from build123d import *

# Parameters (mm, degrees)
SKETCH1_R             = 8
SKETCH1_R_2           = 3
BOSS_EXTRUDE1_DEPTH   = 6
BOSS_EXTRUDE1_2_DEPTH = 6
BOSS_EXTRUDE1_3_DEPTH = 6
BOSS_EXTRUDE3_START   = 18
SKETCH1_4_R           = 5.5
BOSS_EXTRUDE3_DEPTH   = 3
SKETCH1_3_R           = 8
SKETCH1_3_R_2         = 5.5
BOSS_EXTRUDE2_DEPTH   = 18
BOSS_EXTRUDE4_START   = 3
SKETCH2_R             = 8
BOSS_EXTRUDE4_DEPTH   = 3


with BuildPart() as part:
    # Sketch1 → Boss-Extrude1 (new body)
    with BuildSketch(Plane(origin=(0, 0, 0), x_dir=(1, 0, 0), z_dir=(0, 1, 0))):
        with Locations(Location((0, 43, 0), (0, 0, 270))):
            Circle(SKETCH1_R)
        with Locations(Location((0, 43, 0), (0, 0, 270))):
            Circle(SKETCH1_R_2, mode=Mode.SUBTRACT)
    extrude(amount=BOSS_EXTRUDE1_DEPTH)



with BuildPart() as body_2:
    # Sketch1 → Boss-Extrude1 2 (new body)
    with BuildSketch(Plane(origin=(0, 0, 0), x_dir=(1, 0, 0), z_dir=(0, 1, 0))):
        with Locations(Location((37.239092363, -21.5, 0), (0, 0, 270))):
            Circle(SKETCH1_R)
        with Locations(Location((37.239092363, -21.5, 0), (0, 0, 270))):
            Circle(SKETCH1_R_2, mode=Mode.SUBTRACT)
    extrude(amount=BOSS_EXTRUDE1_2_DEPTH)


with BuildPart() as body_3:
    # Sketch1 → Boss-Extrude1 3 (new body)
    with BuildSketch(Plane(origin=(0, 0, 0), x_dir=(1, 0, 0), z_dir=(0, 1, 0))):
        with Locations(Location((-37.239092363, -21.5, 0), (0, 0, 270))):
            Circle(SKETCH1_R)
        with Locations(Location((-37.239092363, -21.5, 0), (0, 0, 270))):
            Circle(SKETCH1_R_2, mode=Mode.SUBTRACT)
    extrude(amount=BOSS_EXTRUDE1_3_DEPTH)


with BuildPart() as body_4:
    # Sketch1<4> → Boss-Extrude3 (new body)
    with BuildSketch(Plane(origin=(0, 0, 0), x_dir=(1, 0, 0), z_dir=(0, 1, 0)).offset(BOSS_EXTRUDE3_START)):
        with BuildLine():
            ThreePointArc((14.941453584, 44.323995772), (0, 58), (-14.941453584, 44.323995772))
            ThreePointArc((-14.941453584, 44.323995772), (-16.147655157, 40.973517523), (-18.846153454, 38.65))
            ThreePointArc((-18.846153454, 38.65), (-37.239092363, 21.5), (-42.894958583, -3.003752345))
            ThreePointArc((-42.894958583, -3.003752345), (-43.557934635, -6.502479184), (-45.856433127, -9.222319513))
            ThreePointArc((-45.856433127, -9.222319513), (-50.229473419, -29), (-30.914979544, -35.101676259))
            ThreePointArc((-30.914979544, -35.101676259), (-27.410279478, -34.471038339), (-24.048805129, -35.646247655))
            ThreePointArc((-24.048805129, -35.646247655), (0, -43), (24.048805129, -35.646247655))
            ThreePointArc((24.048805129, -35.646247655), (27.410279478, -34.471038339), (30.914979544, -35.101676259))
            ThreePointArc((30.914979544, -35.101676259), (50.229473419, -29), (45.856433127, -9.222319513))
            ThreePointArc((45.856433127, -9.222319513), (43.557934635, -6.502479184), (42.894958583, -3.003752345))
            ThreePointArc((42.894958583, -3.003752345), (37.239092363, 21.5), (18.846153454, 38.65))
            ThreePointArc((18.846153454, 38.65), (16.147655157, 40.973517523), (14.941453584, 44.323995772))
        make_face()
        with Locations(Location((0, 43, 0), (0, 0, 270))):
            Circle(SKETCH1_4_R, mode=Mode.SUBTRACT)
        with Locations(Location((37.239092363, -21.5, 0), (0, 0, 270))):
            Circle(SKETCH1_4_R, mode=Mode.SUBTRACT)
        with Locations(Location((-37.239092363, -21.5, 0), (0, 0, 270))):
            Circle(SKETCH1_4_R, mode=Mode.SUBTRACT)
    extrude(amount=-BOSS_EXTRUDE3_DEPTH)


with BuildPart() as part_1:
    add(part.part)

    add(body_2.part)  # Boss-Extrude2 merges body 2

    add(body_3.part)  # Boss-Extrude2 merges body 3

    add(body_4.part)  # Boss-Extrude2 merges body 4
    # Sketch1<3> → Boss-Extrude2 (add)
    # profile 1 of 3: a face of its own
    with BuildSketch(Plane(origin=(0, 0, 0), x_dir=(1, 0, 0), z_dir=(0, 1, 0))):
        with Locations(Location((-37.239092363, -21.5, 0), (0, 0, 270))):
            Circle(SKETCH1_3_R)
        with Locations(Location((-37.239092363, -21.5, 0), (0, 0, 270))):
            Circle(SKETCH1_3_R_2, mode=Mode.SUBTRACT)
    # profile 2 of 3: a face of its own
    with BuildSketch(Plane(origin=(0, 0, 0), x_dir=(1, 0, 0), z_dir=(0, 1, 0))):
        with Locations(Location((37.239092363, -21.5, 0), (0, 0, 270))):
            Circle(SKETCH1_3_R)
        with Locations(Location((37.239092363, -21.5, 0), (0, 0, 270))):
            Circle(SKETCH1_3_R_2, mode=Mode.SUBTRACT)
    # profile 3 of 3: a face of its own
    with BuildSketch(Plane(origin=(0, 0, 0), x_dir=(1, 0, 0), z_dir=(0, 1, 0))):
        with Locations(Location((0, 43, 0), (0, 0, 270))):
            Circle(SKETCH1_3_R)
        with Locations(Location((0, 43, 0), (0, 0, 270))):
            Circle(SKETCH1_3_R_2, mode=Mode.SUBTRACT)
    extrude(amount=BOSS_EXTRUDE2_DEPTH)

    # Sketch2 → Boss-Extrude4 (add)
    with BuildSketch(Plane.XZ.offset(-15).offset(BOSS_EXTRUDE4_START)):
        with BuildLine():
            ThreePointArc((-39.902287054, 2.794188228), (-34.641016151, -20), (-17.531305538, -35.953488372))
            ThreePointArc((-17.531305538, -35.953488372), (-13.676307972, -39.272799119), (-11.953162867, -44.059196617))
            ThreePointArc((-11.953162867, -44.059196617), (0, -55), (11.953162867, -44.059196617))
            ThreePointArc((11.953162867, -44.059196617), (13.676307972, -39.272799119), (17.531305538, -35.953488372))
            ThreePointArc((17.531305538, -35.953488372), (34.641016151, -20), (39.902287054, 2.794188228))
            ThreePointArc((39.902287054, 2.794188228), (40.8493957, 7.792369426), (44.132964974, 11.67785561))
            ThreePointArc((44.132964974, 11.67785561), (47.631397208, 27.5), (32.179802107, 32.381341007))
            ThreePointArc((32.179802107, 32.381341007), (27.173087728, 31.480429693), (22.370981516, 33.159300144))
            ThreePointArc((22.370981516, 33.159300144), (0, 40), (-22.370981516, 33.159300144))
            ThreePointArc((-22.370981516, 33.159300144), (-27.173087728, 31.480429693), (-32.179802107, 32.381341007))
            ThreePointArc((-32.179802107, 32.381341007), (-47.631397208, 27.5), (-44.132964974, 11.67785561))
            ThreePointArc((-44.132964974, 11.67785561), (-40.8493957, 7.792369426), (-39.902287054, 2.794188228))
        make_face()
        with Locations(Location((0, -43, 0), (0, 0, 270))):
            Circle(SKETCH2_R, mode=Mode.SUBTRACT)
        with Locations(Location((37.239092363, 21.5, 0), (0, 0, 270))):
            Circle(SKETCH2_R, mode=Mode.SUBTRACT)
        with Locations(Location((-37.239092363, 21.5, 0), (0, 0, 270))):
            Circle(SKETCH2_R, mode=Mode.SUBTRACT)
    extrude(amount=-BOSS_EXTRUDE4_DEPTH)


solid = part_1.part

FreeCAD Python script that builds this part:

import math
import FreeCAD as App
import Part
import Sketcher

doc = App.newDocument("Part")
params = doc.addObject("Spreadsheet::Sheet", "Params")
for row, (alias, value) in enumerate([
    ("sketch1_diameter", "16 mm"),
    ("sketch1_diameter2", "6 mm"),
    ("pad1_length", "6 mm"),
    ("sketch2_diameter", "16 mm"),
    ("sketch2_diameter2", "6 mm"),
    ("pad2_length", "6 mm"),
    ("sketch3_diameter", "16 mm"),
    ("sketch3_diameter2", "6 mm"),
    ("pad3_length", "6 mm"),
    ("sketch4_diameter", "11 mm"),
    ("sketch4_diameter2", "11 mm"),
    ("sketch4_diameter3", "11 mm"),
    ("sketch4_radius", "15 mm"),
    ("sketch4_radius2", "7 mm"),
    ("pad4_length", "3 mm"),
    ("sketch5_diameter", "16 mm"),
    ("sketch5_diameter2", "11 mm"),
    ("pad5_length", "18 mm"),
    ("sketch6_diameter", "16 mm"),
    ("sketch6_radius", "40 mm"),
    ("sketch6_radius2", "10 mm"),
    ("sketch6_radius3", "12 mm"),
    ("pad6_length", "3 mm"),
], start=1):
    params.set(f"A{row}", alias)
    params.set(f"B{row}", "=" + value)
    params.setAlias(f"B{row}", alias)

body = doc.addObject("PartDesign::Body", "Body")

# Sketch on XZ plane
sketch1 = body.newObject("Sketcher::SketchObject", "Sketch")
sketch1.AttachmentSupport = (doc.getObject("XZ_Plane"), [""])
sketch1.MapMode = "FlatFace"
sketch1.addGeometry([
    Part.Circle(App.Vector(0, -43, 0), App.Vector(0, 0, 1), 8),
    Part.Circle(App.Vector(0, -43, 0), App.Vector(0, 0, 1), 3),
], False)
sketch1.addConstraint([
    Sketcher.Constraint("Coincident", 1, 3, 0, 3),
    Sketcher.Constraint("PointOnObject", 0, 3, -2),
    Sketcher.Constraint("Diameter", 0, 16.0),
    Sketcher.Constraint("Diameter", 1, 6.0),
    Sketcher.Constraint("DistanceY", 0, 3, -1, 1, 43.0),
])
sketch1.setExpression("Constraints[2]", "Params.sketch1_diameter")
sketch1.setExpression("Constraints[3]", "Params.sketch1_diameter2")
pad1 = body.newObject("PartDesign::Pad", "Pad")
pad1.Profile = sketch1
pad1.setExpression("Length", "Params.pad1_length")
pad1.Reversed = True
body2 = doc.addObject("PartDesign::Body", "Body001")

# Sketch on XZ plane
sketch2 = body2.newObject("Sketcher::SketchObject", "Sketch001")
sketch2.AttachmentSupport = (doc.getObject("XZ_Plane001"), [""])
sketch2.MapMode = "FlatFace"
sketch2.addGeometry([
    Part.Circle(App.Vector(37.239092, 21.5, 0), App.Vector(0, 0, 1), 8),
    Part.Circle(App.Vector(37.239092, 21.5, 0), App.Vector(0, 0, 1), 3),
], False)
sketch2.addConstraint([
    Sketcher.Constraint("Coincident", 1, 3, 0, 3),
    Sketcher.Constraint("Diameter", 0, 16.0),
    Sketcher.Constraint("Diameter", 1, 6.0),
    Sketcher.Constraint("DistanceY", -1, 1, 0, 3, 21.5),
    Sketcher.Constraint("DistanceX", -1, 1, 0, 3, 37.239092),
])
sketch2.setExpression("Constraints[1]", "Params.sketch2_diameter")
sketch2.setExpression("Constraints[2]", "Params.sketch2_diameter2")
pad2 = body2.newObject("PartDesign::Pad", "Pad001")
pad2.Profile = sketch2
pad2.setExpression("Length", "Params.pad2_length")
pad2.Reversed = True
body3 = doc.addObject("PartDesign::Body", "Body002")

# Sketch on XZ plane
sketch3 = body3.newObject("Sketcher::SketchObject", "Sketch002")
sketch3.AttachmentSupport = (doc.getObject("XZ_Plane002"), [""])
sketch3.MapMode = "FlatFace"
sketch3.addGeometry([
    Part.Circle(App.Vector(-37.239092, 21.5, 0), App.Vector(0, 0, 1), 8),
    Part.Circle(App.Vector(-37.239092, 21.5, 0), App.Vector(0, 0, 1), 3),
], False)
sketch3.addConstraint([
    Sketcher.Constraint("Coincident", 1, 3, 0, 3),
    Sketcher.Constraint("Diameter", 0, 16.0),
    Sketcher.Constraint("Diameter", 1, 6.0),
    Sketcher.Constraint("DistanceY", -1, 1, 0, 3, 21.5),
    Sketcher.Constraint("DistanceX", 0, 3, -1, 1, 37.239092),
])
sketch3.setExpression("Constraints[1]", "Params.sketch3_diameter")
sketch3.setExpression("Constraints[2]", "Params.sketch3_diameter2")
pad3 = body3.newObject("PartDesign::Pad", "Pad002")
pad3.Profile = sketch3
pad3.setExpression("Length", "Params.pad3_length")
pad3.Reversed = True
body4 = doc.addObject("PartDesign::Body", "Body003")

# Sketch on XZ plane
sketch4 = body4.newObject("Sketcher::SketchObject", "Sketch003")
sketch4.AttachmentSupport = (doc.getObject("XZ_Plane003"), [""])
sketch4.MapMode = "FlatFace"
sketch4.AttachmentOffset = App.Placement(App.Vector(0, 0, -18), App.Rotation())
sketch4.addGeometry([
    Part.ArcOfCircle(Part.Circle(App.Vector(0, -43, 0), App.Vector(0, 0, 1), 15), math.radians(-174.936119), math.radians(-5.063881)),  # 0
    Part.ArcOfCircle(Part.Circle(App.Vector(-21.914132, -44.94186, 0), App.Vector(0, 0, 1), 7), math.radians(5.063881), math.radians(64.005642)),  # 1
    Part.ArcOfCircle(Part.Circle(App.Vector(0, 0, 0), App.Vector(0, 0, 1), 43), math.radians(175.994358), math.radians(244.005642)),  # 2
    Part.ArcOfCircle(Part.Circle(App.Vector(-49.877859, 3.492735, 0), App.Vector(0, 0, 1), 7), math.radians(-4.005642), math.radians(54.936119)),  # 3
    Part.ArcOfCircle(Part.Circle(App.Vector(-37.239092, 21.5, 0), App.Vector(0, 0, 1), 15), math.radians(65.063881), math.radians(234.936119)),  # 4
    Part.ArcOfCircle(Part.Circle(App.Vector(-27.963727, 41.449125, 0), App.Vector(0, 0, 1), 7), math.radians(-114.936119), math.radians(-55.994358)),  # 5
    Part.ArcOfCircle(Part.Circle(App.Vector(0, 0, 0), App.Vector(0, 0, 1), 43), math.radians(55.994358), math.radians(124.005642)),  # 6
    Part.ArcOfCircle(Part.Circle(App.Vector(27.963727, 41.449125, 0), App.Vector(0, 0, 1), 7), math.radians(-124.005642), math.radians(-65.063881)),  # 7
    Part.ArcOfCircle(Part.Circle(App.Vector(37.239092, 21.5, 0), App.Vector(0, 0, 1), 15), math.radians(-54.936119), math.radians(114.936119)),  # 8
    Part.ArcOfCircle(Part.Circle(App.Vector(49.877859, 3.492735, 0), App.Vector(0, 0, 1), 7), math.radians(125.063881), math.radians(184.005642)),  # 9
    Part.ArcOfCircle(Part.Circle(App.Vector(0, 0, 0), App.Vector(0, 0, 1), 43), math.radians(-64.005642), math.radians(4.005642)),  # 10
    Part.ArcOfCircle(Part.Circle(App.Vector(21.914132, -44.94186, 0), App.Vector(0, 0, 1), 7), math.radians(115.994358), math.radians(174.936119)),  # 11
    Part.Circle(App.Vector(-37.239092, 21.5, 0), App.Vector(0, 0, 1), 5.5),  # 12
    Part.Circle(App.Vector(37.239092, 21.5, 0), App.Vector(0, 0, 1), 5.5),  # 13
    Part.Circle(App.Vector(0, -43, 0), App.Vector(0, 0, 1), 5.5),  # 14
], False)
sketch4.addConstraint([
    Sketcher.Constraint("Coincident", 0, 1, 1, 1),
    Sketcher.Constraint("Coincident", 1, 2, 2, 2),
    Sketcher.Constraint("Coincident", 2, 1, 3, 1),
    Sketcher.Constraint("Coincident", 3, 2, 4, 2),
    Sketcher.Constraint("Coincident", 4, 1, 5, 1),
    Sketcher.Constraint("Coincident", 5, 2, 6, 2),
    Sketcher.Constraint("Coincident", 6, 1, 7, 1),
    Sketcher.Constraint("Coincident", 7, 2, 8, 2),
    Sketcher.Constraint("Coincident", 8, 1, 9, 1),
    Sketcher.Constraint("Coincident", 9, 2, 10, 2),
    Sketcher.Constraint("Coincident", 10, 1, 11, 1),
    Sketcher.Constraint("Coincident", 11, 2, 0, 2),
    Sketcher.Constraint("Coincident", 2, 3, -1, 1),
    Sketcher.Constraint("Coincident", 6, 3, -1, 1),
    Sketcher.Constraint("Coincident", 10, 3, -1, 1),
    Sketcher.Constraint("Coincident", 12, 3, 4, 3),
    Sketcher.Constraint("Coincident", 13, 3, 8, 3),
    Sketcher.Constraint("Coincident", 14, 3, 0, 3),
    Sketcher.Constraint("PointOnObject", 0, 3, -2),
    Sketcher.Constraint("Diameter", 12, 11.0),
    Sketcher.Constraint("Diameter", 13, 11.0),
    Sketcher.Constraint("Diameter", 14, 11.0),
    Sketcher.Constraint("Radius", 0, 15.0),
    Sketcher.Constraint("Radius", 1, 7.0),
    Sketcher.Constraint("Radius", 2, 43.0),
    Sketcher.Constraint("Radius", 3, 7.0),
    Sketcher.Constraint("Radius", 4, 15.0),
    Sketcher.Constraint("Radius", 5, 7.0),
    Sketcher.Constraint("Radius", 6, 43.0),
    Sketcher.Constraint("Radius", 7, 7.0),
    Sketcher.Constraint("Radius", 8, 15.0),
    Sketcher.Constraint("Radius", 9, 7.0),
    Sketcher.Constraint("Radius", 10, 43.0),
    Sketcher.Constraint("Radius", 11, 7.0),
    Sketcher.Constraint("DistanceY", 0, 3, -1, 1, 43.0),
    Sketcher.Constraint("DistanceY", -1, 1, 4, 3, 21.5),
    Sketcher.Constraint("DistanceY", -1, 1, 8, 3, 21.5),
    Sketcher.Constraint("DistanceY", 1, 2, -1, 1, 38.65),
    Sketcher.Constraint("DistanceY", 10, 1, -1, 1, 38.65),
    Sketcher.Constraint("DistanceX", 1, 2, 0, 1, 3.9047),
    Sketcher.Constraint("DistanceX", 3, 3, 2, 1, 6.9829),
    Sketcher.Constraint("DistanceX", 9, 2, 9, 3, 6.9829),
    Sketcher.Constraint("DistanceX", 11, 2, 10, 1, 3.9047),
    Sketcher.Constraint("DistanceX", 3, 3, -1, 1, 49.877859),
    Sketcher.Constraint("DistanceX", -1, 1, 9, 3, 49.877859),
    Sketcher.Constraint("DistanceY", -1, 1, 3, 2, 9.22232),
    Sketcher.Constraint("DistanceX", 4, 1, -1, 1, 30.91498),
    Sketcher.Constraint("DistanceX", -1, 1, 7, 2, 30.91498),
    Sketcher.Constraint("DistanceY", -1, 1, 8, 1, 9.22232),
    Sketcher.Constraint("DistanceY", 4, 1, 5, 2, 0.544571),
    Sketcher.Constraint("DistanceX", 6, 1, 7, 3, 3.914922),
])
sketch4.setExpression("Constraints[19]", "Params.sketch4_diameter")
sketch4.setExpression("Constraints[20]", "Params.sketch4_diameter2")
sketch4.setExpression("Constraints[21]", "Params.sketch4_diameter3")
sketch4.setExpression("Constraints[22]", "Params.sketch4_radius")
sketch4.setExpression("Constraints[23]", "Params.sketch4_radius2")
pad4 = body4.newObject("PartDesign::Pad", "Pad003")
pad4.Profile = sketch4
pad4.setExpression("Length", "Params.pad4_length")
body.AllowCompound = True
doc.recompute()

boolean = body.newObject("PartDesign::Boolean", "Boolean")
boolean.Type = "Fuse"
boolean.addObjects([body2])
doc.recompute()

boolean2 = body.newObject("PartDesign::Boolean", "Boolean001")
boolean2.Type = "Fuse"
boolean2.addObjects([body3])
doc.recompute()

boolean3 = body.newObject("PartDesign::Boolean", "Boolean002")
boolean3.Type = "Fuse"
boolean3.addObjects([body4])

# Sketch on XZ plane
sketch5 = body.newObject("Sketcher::SketchObject", "Sketch004")
sketch5.AttachmentSupport = (doc.getObject("XZ_Plane"), [""])
sketch5.MapMode = "FlatFace"
sketch5.addGeometry([
    Part.Circle(App.Vector(-37.239092, 21.5, 0), App.Vector(0, 0, 1), 8),  # 0
    Part.Circle(App.Vector(-37.239092, 21.5, 0), App.Vector(0, 0, 1), 5.5),  # 1
    Part.Circle(App.Vector(37.239092, 21.5, 0), App.Vector(0, 0, 1), 8),  # 2
    Part.Circle(App.Vector(37.239092, 21.5, 0), App.Vector(0, 0, 1), 5.5),  # 3
    Part.Circle(App.Vector(0, -43, 0), App.Vector(0, 0, 1), 8),  # 4
    Part.Circle(App.Vector(0, -43, 0), App.Vector(0, 0, 1), 5.5),  # 5
], False)
sketch5.addConstraint([
    Sketcher.Constraint("Coincident", 1, 3, 0, 3),
    Sketcher.Constraint("Coincident", 3, 3, 2, 3),
    Sketcher.Constraint("Coincident", 5, 3, 4, 3),
    Sketcher.Constraint("Equal", 0, 2),
    Sketcher.Constraint("Equal", 1, 3),
    Sketcher.Constraint("Equal", 2, 4),
    Sketcher.Constraint("Equal", 3, 5),
    Sketcher.Constraint("Symmetric", 0, 3, 2, 3, -2),
    Sketcher.Constraint("PointOnObject", 4, 3, -2),
    Sketcher.Constraint("Diameter", 0, 16.0),
    Sketcher.Constraint("Diameter", 1, 11.0),
    Sketcher.Constraint("DistanceY", 4, 3, -1, 1, 43.0),
    Sketcher.Constraint("DistanceY", -1, 1, 0, 3, 21.5),
    Sketcher.Constraint("DistanceX", 0, 3, -1, 1, 37.239092),
])
sketch5.setExpression("Constraints[9]", "Params.sketch5_diameter")
sketch5.setExpression("Constraints[10]", "Params.sketch5_diameter2")
pad5 = body.newObject("PartDesign::Pad", "Pad004")
pad5.Profile = sketch5
pad5.setExpression("Length", "Params.pad5_length")
pad5.Reversed = True

# Sketch on XZ plane
sketch6 = body.newObject("Sketcher::SketchObject", "Sketch005")
sketch6.AttachmentSupport = (doc.getObject("XZ_Plane"), [""])
sketch6.MapMode = "FlatFace"
sketch6.AttachmentOffset = App.Placement(App.Vector(0, 0, -12), App.Rotation())
sketch6.addGeometry([
    Part.ArcOfCircle(Part.Circle(App.Vector(0, 0, 0), App.Vector(0, 0, 1), 40), math.radians(175.994358), math.radians(244.005642)),  # 0
    Part.ArcOfCircle(Part.Circle(App.Vector(-21.914132, -44.94186, 0), App.Vector(0, 0, 1), 10), math.radians(5.063881), math.radians(64.005642)),  # 1
    Part.ArcOfCircle(Part.Circle(App.Vector(0, -43, 0), App.Vector(0, 0, 1), 12), math.radians(-174.936119), math.radians(-5.063881)),  # 2
    Part.ArcOfCircle(Part.Circle(App.Vector(21.914132, -44.94186, 0), App.Vector(0, 0, 1), 10), math.radians(115.994358), math.radians(174.936119)),  # 3
    Part.ArcOfCircle(Part.Circle(App.Vector(0, 0, 0), App.Vector(0, 0, 1), 40), math.radians(-64.005642), math.radians(4.005642)),  # 4
    Part.ArcOfCircle(Part.Circle(App.Vector(49.877859, 3.492735, 0), App.Vector(0, 0, 1), 10), math.radians(125.063881), math.radians(184.005642)),  # 5
    Part.ArcOfCircle(Part.Circle(App.Vector(37.239092, 21.5, 0), App.Vector(0, 0, 1), 12), math.radians(-54.936119), math.radians(114.936119)),  # 6
    Part.ArcOfCircle(Part.Circle(App.Vector(27.963727, 41.449125, 0), App.Vector(0, 0, 1), 10), math.radians(-124.005642), math.radians(-65.063881)),  # 7
    Part.ArcOfCircle(Part.Circle(App.Vector(0, 0, 0), App.Vector(0, 0, 1), 40), math.radians(55.994358), math.radians(124.005642)),  # 8
    Part.ArcOfCircle(Part.Circle(App.Vector(-27.963727, 41.449125, 0), App.Vector(0, 0, 1), 10), math.radians(-114.936119), math.radians(-55.994358)),  # 9
    Part.ArcOfCircle(Part.Circle(App.Vector(-37.239092, 21.5, 0), App.Vector(0, 0, 1), 12), math.radians(65.063881), math.radians(234.936119)),  # 10
    Part.ArcOfCircle(Part.Circle(App.Vector(-49.877859, 3.492735, 0), App.Vector(0, 0, 1), 10), math.radians(-4.005642), math.radians(54.936119)),  # 11
    Part.Circle(App.Vector(0, -43, 0), App.Vector(0, 0, 1), 8),  # 12
    Part.Circle(App.Vector(-37.239092, 21.5, 0), App.Vector(0, 0, 1), 8),  # 13
    Part.Circle(App.Vector(37.239092, 21.5, 0), App.Vector(0, 0, 1), 8),  # 14
], False)
sketch6.addConstraint([
    Sketcher.Constraint("Tangent", 0, 2, 1, 2),
    Sketcher.Constraint("Tangent", 1, 1, 2, 1),
    Sketcher.Constraint("Tangent", 2, 2, 3, 2),
    Sketcher.Constraint("Tangent", 3, 1, 4, 1),
    Sketcher.Constraint("Tangent", 4, 2, 5, 2),
    Sketcher.Constraint("Tangent", 5, 1, 6, 1),
    Sketcher.Constraint("Tangent", 6, 2, 7, 2),
    Sketcher.Constraint("Tangent", 7, 1, 8, 1),
    Sketcher.Constraint("Tangent", 8, 2, 9, 2),
    Sketcher.Constraint("Tangent", 9, 1, 10, 1),
    Sketcher.Constraint("Tangent", 10, 2, 11, 2),
    Sketcher.Constraint("Tangent", 11, 1, 0, 1),
    Sketcher.Constraint("Coincident", 0, 3, -1, 1),
    Sketcher.Constraint("Coincident", 4, 3, -1, 1),
    Sketcher.Constraint("Coincident", 8, 3, -1, 1),
    Sketcher.Constraint("Coincident", 12, 3, 2, 3),
    Sketcher.Constraint("Coincident", 13, 3, 10, 3),
    Sketcher.Constraint("Coincident", 14, 3, 6, 3),
    Sketcher.Constraint("Equal", 1, 3),
    Sketcher.Constraint("Equal", 0, 4),
    Sketcher.Constraint("Equal", 3, 5),
    Sketcher.Constraint("Equal", 2, 6),
    Sketcher.Constraint("Equal", 5, 7),
    Sketcher.Constraint("Equal", 4, 8),
    Sketcher.Constraint("Equal", 7, 9),
    Sketcher.Constraint("Equal", 6, 10),
    Sketcher.Constraint("Equal", 9, 11),
    Sketcher.Constraint("Equal", 12, 13),
    Sketcher.Constraint("Equal", 13, 14),
    Sketcher.Constraint("Symmetric", 6, 3, 10, 3, -2),
    Sketcher.Constraint("PointOnObject", 2, 3, -2),
    Sketcher.Constraint("Diameter", 12, 16.0),
    Sketcher.Constraint("Radius", 0, 40.0),
    Sketcher.Constraint("Radius", 1, 10.0),
    Sketcher.Constraint("Radius", 2, 12.0),
    Sketcher.Constraint("DistanceY", 2, 3, -1, 1, 43.0),
    Sketcher.Constraint("DistanceY", -1, 1, 6, 3, 21.5),
    Sketcher.Constraint("DistanceY", -1, 1, 7, 1, 33.1593),
])
sketch6.setExpression("Constraints[31]", "Params.sketch6_diameter")
sketch6.setExpression("Constraints[32]", "Params.sketch6_radius")
sketch6.setExpression("Constraints[33]", "Params.sketch6_radius2")
sketch6.setExpression("Constraints[34]", "Params.sketch6_radius3")
pad6 = body.newObject("PartDesign::Pad", "Pad005")
pad6.Profile = sketch6
pad6.setExpression("Length", "Params.pad6_length")
pad6.Reversed = True

doc.recompute()
